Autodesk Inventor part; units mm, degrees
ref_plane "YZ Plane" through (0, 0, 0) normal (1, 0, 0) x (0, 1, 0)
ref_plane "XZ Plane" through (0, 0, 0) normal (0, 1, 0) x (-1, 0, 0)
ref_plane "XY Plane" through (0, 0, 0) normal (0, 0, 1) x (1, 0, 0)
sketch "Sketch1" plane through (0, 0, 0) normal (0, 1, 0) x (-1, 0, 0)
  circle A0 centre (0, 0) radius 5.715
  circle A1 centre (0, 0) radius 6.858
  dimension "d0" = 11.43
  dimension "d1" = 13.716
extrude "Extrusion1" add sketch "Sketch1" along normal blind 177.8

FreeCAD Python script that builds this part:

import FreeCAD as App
import Part
import Sketcher

V = App.Vector
Q = App.Units.Quantity

doc = App.newDocument("Part")
params = doc.addObject("Spreadsheet::Sheet", "Params")
for row, (alias, value) in enumerate([
    ("sketch1_diameter", "0.54 in"),
    ("sketch1_diameter2", "0.45 in"),
    ("pad1_length", "7 in"),
], start=1):
    params.set(f"A{row}", alias)
    params.set(f"B{row}", "=" + value)
    params.setAlias(f"B{row}", alias)

body = doc.addObject("PartDesign::Body", "Body")

# Sketch on XZ plane
sketch1 = body.newObject("Sketcher::SketchObject", "Sketch")
sketch1.AttachmentSupport = (doc.getObject("XZ_Plane"), [""])
sketch1.MapMode = "FlatFace"
sketch1.addGeometry(Part.Circle(V(0, 0, 0), V(0, 0, 1), 6.858), False)
sketch1.addGeometry(Part.Circle(V(0, 0, 0), V(0, 0, 1), 5.715), False)
sketch1.addConstraint(Sketcher.Constraint("Coincident", 0, 3, -1, 1))
sketch1.addConstraint(Sketcher.Constraint("Coincident", 1, 3, -1, 1))
sketch1.addConstraint(Sketcher.Constraint("Diameter", 0, Q("0.54 in")))
sketch1.addConstraint(Sketcher.Constraint("Diameter", 1, Q("0.45 in")))
sketch1.setExpression("Constraints[2]", "Params.sketch1_diameter")
sketch1.setExpression("Constraints[3]", "Params.sketch1_diameter2")
pad1 = body.newObject("PartDesign::Pad", "Pad")
pad1.Profile = sketch1
pad1.setExpression("Length", "Params.pad1_length")
pad1.Reversed = True

doc.recompute()
